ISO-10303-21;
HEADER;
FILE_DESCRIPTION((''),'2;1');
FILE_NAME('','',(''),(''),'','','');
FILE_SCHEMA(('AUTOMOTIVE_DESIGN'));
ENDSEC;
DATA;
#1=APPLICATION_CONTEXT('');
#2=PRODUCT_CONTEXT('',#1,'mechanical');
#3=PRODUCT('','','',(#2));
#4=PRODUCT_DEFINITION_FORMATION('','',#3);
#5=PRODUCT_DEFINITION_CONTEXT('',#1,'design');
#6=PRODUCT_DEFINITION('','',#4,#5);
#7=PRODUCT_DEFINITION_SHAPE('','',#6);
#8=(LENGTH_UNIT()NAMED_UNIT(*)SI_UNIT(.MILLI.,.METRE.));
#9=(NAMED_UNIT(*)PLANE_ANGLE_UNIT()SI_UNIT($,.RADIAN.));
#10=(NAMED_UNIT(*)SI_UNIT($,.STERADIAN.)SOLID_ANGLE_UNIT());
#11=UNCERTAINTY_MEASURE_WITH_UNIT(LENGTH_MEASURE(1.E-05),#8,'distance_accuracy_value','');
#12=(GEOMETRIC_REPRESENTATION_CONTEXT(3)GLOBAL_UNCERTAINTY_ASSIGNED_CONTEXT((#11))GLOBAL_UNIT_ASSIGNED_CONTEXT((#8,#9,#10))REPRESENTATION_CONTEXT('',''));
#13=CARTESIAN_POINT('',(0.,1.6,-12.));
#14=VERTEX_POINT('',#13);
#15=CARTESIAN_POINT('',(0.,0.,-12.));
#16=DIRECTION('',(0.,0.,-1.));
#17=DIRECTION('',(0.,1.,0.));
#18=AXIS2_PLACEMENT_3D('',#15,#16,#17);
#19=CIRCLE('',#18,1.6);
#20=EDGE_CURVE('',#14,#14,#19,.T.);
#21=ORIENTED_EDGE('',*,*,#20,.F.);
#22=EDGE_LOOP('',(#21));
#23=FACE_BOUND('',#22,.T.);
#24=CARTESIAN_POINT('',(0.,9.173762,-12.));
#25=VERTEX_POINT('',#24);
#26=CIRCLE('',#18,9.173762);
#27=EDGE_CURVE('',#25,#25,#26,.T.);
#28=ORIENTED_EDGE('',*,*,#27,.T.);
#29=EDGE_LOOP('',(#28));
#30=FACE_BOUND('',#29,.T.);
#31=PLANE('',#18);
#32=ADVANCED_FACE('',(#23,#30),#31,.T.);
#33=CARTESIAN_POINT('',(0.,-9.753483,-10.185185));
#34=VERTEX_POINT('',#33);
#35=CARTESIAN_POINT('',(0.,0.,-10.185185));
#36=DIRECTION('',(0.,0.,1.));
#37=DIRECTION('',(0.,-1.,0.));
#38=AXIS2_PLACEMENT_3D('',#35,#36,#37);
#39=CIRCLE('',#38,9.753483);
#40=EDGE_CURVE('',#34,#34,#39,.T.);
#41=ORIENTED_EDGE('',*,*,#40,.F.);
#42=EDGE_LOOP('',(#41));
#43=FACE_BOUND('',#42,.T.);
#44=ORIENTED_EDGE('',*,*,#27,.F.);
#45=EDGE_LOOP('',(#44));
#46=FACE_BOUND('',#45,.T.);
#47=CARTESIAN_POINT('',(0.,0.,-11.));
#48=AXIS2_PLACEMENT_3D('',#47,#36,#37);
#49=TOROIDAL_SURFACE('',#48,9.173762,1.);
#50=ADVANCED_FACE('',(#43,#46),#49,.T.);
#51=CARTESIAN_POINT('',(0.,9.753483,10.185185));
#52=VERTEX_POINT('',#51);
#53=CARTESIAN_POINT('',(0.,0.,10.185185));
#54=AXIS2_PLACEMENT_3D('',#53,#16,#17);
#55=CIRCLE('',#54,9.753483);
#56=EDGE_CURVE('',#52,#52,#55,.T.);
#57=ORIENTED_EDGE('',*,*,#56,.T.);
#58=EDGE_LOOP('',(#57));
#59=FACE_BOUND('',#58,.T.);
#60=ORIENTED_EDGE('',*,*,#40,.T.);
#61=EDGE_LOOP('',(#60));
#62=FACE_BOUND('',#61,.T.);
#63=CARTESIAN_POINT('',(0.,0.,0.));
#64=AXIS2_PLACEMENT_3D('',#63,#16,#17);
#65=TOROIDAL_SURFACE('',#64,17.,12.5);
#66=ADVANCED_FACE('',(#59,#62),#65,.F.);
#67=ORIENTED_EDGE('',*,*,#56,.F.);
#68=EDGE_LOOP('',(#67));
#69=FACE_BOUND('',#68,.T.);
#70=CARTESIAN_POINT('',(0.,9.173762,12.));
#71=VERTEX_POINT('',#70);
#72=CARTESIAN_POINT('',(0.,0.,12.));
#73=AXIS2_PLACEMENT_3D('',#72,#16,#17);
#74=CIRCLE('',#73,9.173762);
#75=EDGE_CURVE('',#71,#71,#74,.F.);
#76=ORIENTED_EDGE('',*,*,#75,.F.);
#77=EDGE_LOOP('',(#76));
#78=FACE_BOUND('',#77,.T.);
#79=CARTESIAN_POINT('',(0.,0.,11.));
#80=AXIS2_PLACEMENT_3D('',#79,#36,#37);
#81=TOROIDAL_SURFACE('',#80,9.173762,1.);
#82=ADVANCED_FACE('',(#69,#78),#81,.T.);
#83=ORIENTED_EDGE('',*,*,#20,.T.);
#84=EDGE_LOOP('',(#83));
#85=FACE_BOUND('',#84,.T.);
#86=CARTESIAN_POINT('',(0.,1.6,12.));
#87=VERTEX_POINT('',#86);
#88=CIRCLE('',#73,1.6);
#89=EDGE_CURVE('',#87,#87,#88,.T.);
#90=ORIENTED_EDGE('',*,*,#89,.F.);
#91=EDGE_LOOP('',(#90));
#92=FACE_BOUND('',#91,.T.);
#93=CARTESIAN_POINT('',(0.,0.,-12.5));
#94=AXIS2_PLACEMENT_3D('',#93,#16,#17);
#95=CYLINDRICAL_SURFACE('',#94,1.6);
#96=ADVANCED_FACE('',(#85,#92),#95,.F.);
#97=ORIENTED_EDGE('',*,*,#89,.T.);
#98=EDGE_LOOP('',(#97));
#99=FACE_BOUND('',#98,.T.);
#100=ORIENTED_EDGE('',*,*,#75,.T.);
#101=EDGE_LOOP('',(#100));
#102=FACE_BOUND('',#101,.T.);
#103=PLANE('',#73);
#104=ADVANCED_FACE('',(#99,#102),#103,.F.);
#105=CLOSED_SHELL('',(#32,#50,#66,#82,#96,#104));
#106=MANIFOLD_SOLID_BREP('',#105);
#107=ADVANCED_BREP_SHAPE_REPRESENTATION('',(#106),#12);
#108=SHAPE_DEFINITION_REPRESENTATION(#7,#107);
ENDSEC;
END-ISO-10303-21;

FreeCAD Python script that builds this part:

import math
import FreeCAD as App
import Part
import Sketcher
from FreeCAD import Vector
Q = App.Units.Quantity


def edges_at(feature, points):
    """Names of the edges that pass closest to the given points."""
    edges = feature.Shape.Edges
    near = lambda p: min(range(len(edges)), key=lambda i: edges[i].distToShape(Part.Vertex(*p))[0])
    return sorted({f"Edge{near(p) + 1}" for p in points})

doc = App.newDocument("Part")
body = doc.addObject("PartDesign::Body", "Body")

# Sketch on YZ plane
sketch1 = doc.addObject("Sketcher::SketchObject", "Sketch")
body.addObject(sketch1)
sketch1.AttachmentSupport = (doc.YZ_Plane, [""])
sketch1.MapMode = "FlatFace"
sketch1.addGeometry(Part.LineSegment(Vector(1.6, -12, 0), Vector(13.5, -12, 0)), False)
sketch1.addGeometry(Part.ArcOfCircle(Part.Circle(Vector(17, 0, 0), Vector(0, 0, 1), 12.5), math.radians(106.260205), math.radians(253.739795)), False)
sketch1.addGeometry(Part.LineSegment(Vector(13.5, 12, 0), Vector(1.6, 12, 0)), False)
sketch1.addGeometry(Part.LineSegment(Vector(1.6, 12, 0), Vector(1.6, -12, 0)), False)
sketch1.addConstraint(Sketcher.Constraint("Coincident", 0, 2, 1, 2))
sketch1.addConstraint(Sketcher.Constraint("Coincident", 1, 1, 2, 1))
sketch1.addConstraint(Sketcher.Constraint("Coincident", 2, 2, 3, 1))
sketch1.addConstraint(Sketcher.Constraint("Coincident", 3, 2, 0, 1))
sketch1.addConstraint(Sketcher.Constraint("Horizontal", 0))
sketch1.addConstraint(Sketcher.Constraint("Horizontal", 2))
sketch1.addConstraint(Sketcher.Constraint("Vertical", 3))
sketch1.addConstraint(Sketcher.Constraint("Symmetric", 0, 2, 1, 1, -1))
sketch1.addConstraint(Sketcher.Constraint("Radius", 1, Q("12.5 mm")))
sketch1.addConstraint(Sketcher.Constraint("DistanceY", 3, 2, 3, 1, Q("24 mm")))
sketch1.addConstraint(Sketcher.Constraint("DistanceX", 0, 1, 0, 2, Q("11.9 mm")))
sketch1.addConstraint(Sketcher.Constraint("DistanceX", -1, 1, 1, 3, Q("17 mm")))
revolution = doc.addObject("PartDesign::Revolution", "Revolution")
body.addObject(revolution)
revolution.Profile = sketch1
revolution.ReferenceAxis = (sketch1, ["V_Axis"])
revolution.Angle = 360
doc.recompute()

fillet = doc.addObject("PartDesign::Fillet", "Fillet")
body.addObject(fillet)
fillet.Base = (revolution, edges_at(revolution, [(0, -13.5, 12), (0, -13.5, -12)]))
fillet.Radius = 1

doc.recompute()
